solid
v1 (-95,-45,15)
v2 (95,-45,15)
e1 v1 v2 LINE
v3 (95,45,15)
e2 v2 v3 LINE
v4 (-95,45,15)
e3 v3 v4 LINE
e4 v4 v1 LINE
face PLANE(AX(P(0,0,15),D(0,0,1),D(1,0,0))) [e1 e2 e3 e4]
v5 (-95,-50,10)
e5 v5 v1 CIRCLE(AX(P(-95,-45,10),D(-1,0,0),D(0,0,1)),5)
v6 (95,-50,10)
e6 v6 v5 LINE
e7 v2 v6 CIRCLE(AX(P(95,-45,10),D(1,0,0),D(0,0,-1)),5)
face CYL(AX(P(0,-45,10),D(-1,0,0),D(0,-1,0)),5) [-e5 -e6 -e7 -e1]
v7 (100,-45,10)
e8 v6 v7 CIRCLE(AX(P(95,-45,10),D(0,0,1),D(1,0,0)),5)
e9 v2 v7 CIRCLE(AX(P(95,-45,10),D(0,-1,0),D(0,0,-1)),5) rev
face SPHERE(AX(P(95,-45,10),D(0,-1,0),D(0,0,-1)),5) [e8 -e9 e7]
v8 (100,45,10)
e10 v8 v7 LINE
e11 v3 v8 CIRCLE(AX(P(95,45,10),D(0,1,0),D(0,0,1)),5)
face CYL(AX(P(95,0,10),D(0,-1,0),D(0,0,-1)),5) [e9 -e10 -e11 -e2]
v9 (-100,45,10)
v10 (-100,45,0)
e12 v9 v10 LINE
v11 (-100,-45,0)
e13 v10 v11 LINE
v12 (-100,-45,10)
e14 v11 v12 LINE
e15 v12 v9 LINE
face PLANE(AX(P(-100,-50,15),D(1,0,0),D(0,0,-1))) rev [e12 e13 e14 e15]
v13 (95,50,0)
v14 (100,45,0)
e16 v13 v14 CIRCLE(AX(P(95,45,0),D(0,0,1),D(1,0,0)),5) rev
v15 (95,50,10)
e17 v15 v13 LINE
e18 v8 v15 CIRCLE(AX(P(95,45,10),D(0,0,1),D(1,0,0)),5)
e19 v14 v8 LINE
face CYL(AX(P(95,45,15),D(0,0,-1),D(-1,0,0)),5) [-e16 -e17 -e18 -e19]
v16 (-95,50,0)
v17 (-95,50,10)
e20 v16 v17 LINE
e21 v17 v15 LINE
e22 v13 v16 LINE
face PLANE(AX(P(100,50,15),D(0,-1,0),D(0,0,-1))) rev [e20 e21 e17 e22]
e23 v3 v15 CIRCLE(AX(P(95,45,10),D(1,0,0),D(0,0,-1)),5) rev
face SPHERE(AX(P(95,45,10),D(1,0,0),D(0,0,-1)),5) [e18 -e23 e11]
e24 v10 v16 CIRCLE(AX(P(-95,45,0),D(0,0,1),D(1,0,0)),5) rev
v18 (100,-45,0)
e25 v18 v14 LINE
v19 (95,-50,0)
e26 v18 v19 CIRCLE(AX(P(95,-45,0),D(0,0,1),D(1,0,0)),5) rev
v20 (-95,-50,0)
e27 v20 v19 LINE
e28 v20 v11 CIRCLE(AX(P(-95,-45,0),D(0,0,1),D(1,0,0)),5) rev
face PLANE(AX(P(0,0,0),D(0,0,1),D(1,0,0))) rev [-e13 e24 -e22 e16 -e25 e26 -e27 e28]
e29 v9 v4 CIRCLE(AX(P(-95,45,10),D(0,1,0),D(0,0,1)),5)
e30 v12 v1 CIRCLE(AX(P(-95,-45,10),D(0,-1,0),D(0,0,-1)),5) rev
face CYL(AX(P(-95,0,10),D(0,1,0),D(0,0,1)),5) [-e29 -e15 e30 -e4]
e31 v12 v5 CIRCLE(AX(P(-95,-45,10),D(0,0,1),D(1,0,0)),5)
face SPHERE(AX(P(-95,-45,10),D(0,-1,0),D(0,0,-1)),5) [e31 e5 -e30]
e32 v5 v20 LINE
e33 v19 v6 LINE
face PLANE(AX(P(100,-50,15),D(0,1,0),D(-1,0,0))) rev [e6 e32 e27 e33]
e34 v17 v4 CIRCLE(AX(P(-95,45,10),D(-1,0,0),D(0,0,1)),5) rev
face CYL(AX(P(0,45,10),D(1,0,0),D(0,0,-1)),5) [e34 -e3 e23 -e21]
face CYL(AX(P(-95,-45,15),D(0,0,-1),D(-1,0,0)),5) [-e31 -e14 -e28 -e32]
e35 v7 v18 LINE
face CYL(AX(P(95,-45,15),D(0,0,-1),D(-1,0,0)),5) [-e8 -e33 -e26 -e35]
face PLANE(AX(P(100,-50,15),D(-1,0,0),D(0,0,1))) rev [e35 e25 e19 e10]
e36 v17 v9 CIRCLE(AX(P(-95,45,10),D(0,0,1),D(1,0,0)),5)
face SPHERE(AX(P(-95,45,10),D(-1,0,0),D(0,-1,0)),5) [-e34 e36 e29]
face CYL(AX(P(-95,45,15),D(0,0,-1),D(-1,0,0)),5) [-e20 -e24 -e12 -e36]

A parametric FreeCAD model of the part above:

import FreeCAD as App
import Part
import Sketcher
from FreeCAD import Vector
Q = App.Units.Quantity


def edges_at(feature, points):
    """Names of the edges that pass closest to the given points."""
    edges = feature.Shape.Edges
    near = lambda p: min(range(len(edges)), key=lambda i: edges[i].distToShape(Part.Vertex(*p))[0])
    return sorted({f"Edge{near(p) + 1}" for p in points})


def add_polygon(sketch, points):
    """Adds a closed chain of lines whose ends are joined by coincident constraints."""
    first, n = sketch.GeometryCount, len(points)
    for a, b in zip(points, points[1:] + points[:1]):
        sketch.addGeometry(Part.LineSegment(App.Vector(*a, 0), App.Vector(*b, 0)), False)
    for i in range(n):
        sketch.addConstraint(Sketcher.Constraint("Coincident", first + i, 2, first + (i + 1) % n, 1))

doc = App.newDocument("Part")
body = doc.addObject("PartDesign::Body", "Body")

# Sketch on XY plane
sketch1 = doc.addObject("Sketcher::SketchObject", "Sketch")
body.addObject(sketch1)
sketch1.AttachmentSupport = (doc.XY_Plane, [""])
sketch1.MapMode = "FlatFace"
add_polygon(sketch1, [(-100, 50), (-100, -50), (100, -50), (100, 50)])  # lines 0-3
sketch1.addConstraint(Sketcher.Constraint("Vertical", 0))
sketch1.addConstraint(Sketcher.Constraint("Horizontal", 1))
sketch1.addConstraint(Sketcher.Constraint("Vertical", 2))
sketch1.addConstraint(Sketcher.Constraint("Horizontal", 3))
sketch1.addConstraint(Sketcher.Constraint("Symmetric", 0, 2, 2, 2, -1, 1))
sketch1.addConstraint(Sketcher.Constraint("DistanceX", 1, 1, 1, 2, Q("200 mm")))
sketch1.addConstraint(Sketcher.Constraint("DistanceY", 0, 2, 0, 1, Q("100 mm")))
pad1 = doc.addObject("PartDesign::Pad", "Pad")
body.addObject(pad1)
pad1.Profile = sketch1
pad1.Length = 15
doc.recompute()

fillet = doc.addObject("PartDesign::Fillet", "Fillet")
body.addObject(fillet)
fillet.Base = (pad1, edges_at(pad1, [
    (100, 0, 15),
    (0, 50, 15),
    (-100, 0, 15),
    (-100, 50, 7.5),
    (100, 50, 7.5),
    (100, -50, 7.5),
    (-100, -50, 7.5),
    (0, -50, 15),
]))
fillet.Radius = 5

doc.recompute()
